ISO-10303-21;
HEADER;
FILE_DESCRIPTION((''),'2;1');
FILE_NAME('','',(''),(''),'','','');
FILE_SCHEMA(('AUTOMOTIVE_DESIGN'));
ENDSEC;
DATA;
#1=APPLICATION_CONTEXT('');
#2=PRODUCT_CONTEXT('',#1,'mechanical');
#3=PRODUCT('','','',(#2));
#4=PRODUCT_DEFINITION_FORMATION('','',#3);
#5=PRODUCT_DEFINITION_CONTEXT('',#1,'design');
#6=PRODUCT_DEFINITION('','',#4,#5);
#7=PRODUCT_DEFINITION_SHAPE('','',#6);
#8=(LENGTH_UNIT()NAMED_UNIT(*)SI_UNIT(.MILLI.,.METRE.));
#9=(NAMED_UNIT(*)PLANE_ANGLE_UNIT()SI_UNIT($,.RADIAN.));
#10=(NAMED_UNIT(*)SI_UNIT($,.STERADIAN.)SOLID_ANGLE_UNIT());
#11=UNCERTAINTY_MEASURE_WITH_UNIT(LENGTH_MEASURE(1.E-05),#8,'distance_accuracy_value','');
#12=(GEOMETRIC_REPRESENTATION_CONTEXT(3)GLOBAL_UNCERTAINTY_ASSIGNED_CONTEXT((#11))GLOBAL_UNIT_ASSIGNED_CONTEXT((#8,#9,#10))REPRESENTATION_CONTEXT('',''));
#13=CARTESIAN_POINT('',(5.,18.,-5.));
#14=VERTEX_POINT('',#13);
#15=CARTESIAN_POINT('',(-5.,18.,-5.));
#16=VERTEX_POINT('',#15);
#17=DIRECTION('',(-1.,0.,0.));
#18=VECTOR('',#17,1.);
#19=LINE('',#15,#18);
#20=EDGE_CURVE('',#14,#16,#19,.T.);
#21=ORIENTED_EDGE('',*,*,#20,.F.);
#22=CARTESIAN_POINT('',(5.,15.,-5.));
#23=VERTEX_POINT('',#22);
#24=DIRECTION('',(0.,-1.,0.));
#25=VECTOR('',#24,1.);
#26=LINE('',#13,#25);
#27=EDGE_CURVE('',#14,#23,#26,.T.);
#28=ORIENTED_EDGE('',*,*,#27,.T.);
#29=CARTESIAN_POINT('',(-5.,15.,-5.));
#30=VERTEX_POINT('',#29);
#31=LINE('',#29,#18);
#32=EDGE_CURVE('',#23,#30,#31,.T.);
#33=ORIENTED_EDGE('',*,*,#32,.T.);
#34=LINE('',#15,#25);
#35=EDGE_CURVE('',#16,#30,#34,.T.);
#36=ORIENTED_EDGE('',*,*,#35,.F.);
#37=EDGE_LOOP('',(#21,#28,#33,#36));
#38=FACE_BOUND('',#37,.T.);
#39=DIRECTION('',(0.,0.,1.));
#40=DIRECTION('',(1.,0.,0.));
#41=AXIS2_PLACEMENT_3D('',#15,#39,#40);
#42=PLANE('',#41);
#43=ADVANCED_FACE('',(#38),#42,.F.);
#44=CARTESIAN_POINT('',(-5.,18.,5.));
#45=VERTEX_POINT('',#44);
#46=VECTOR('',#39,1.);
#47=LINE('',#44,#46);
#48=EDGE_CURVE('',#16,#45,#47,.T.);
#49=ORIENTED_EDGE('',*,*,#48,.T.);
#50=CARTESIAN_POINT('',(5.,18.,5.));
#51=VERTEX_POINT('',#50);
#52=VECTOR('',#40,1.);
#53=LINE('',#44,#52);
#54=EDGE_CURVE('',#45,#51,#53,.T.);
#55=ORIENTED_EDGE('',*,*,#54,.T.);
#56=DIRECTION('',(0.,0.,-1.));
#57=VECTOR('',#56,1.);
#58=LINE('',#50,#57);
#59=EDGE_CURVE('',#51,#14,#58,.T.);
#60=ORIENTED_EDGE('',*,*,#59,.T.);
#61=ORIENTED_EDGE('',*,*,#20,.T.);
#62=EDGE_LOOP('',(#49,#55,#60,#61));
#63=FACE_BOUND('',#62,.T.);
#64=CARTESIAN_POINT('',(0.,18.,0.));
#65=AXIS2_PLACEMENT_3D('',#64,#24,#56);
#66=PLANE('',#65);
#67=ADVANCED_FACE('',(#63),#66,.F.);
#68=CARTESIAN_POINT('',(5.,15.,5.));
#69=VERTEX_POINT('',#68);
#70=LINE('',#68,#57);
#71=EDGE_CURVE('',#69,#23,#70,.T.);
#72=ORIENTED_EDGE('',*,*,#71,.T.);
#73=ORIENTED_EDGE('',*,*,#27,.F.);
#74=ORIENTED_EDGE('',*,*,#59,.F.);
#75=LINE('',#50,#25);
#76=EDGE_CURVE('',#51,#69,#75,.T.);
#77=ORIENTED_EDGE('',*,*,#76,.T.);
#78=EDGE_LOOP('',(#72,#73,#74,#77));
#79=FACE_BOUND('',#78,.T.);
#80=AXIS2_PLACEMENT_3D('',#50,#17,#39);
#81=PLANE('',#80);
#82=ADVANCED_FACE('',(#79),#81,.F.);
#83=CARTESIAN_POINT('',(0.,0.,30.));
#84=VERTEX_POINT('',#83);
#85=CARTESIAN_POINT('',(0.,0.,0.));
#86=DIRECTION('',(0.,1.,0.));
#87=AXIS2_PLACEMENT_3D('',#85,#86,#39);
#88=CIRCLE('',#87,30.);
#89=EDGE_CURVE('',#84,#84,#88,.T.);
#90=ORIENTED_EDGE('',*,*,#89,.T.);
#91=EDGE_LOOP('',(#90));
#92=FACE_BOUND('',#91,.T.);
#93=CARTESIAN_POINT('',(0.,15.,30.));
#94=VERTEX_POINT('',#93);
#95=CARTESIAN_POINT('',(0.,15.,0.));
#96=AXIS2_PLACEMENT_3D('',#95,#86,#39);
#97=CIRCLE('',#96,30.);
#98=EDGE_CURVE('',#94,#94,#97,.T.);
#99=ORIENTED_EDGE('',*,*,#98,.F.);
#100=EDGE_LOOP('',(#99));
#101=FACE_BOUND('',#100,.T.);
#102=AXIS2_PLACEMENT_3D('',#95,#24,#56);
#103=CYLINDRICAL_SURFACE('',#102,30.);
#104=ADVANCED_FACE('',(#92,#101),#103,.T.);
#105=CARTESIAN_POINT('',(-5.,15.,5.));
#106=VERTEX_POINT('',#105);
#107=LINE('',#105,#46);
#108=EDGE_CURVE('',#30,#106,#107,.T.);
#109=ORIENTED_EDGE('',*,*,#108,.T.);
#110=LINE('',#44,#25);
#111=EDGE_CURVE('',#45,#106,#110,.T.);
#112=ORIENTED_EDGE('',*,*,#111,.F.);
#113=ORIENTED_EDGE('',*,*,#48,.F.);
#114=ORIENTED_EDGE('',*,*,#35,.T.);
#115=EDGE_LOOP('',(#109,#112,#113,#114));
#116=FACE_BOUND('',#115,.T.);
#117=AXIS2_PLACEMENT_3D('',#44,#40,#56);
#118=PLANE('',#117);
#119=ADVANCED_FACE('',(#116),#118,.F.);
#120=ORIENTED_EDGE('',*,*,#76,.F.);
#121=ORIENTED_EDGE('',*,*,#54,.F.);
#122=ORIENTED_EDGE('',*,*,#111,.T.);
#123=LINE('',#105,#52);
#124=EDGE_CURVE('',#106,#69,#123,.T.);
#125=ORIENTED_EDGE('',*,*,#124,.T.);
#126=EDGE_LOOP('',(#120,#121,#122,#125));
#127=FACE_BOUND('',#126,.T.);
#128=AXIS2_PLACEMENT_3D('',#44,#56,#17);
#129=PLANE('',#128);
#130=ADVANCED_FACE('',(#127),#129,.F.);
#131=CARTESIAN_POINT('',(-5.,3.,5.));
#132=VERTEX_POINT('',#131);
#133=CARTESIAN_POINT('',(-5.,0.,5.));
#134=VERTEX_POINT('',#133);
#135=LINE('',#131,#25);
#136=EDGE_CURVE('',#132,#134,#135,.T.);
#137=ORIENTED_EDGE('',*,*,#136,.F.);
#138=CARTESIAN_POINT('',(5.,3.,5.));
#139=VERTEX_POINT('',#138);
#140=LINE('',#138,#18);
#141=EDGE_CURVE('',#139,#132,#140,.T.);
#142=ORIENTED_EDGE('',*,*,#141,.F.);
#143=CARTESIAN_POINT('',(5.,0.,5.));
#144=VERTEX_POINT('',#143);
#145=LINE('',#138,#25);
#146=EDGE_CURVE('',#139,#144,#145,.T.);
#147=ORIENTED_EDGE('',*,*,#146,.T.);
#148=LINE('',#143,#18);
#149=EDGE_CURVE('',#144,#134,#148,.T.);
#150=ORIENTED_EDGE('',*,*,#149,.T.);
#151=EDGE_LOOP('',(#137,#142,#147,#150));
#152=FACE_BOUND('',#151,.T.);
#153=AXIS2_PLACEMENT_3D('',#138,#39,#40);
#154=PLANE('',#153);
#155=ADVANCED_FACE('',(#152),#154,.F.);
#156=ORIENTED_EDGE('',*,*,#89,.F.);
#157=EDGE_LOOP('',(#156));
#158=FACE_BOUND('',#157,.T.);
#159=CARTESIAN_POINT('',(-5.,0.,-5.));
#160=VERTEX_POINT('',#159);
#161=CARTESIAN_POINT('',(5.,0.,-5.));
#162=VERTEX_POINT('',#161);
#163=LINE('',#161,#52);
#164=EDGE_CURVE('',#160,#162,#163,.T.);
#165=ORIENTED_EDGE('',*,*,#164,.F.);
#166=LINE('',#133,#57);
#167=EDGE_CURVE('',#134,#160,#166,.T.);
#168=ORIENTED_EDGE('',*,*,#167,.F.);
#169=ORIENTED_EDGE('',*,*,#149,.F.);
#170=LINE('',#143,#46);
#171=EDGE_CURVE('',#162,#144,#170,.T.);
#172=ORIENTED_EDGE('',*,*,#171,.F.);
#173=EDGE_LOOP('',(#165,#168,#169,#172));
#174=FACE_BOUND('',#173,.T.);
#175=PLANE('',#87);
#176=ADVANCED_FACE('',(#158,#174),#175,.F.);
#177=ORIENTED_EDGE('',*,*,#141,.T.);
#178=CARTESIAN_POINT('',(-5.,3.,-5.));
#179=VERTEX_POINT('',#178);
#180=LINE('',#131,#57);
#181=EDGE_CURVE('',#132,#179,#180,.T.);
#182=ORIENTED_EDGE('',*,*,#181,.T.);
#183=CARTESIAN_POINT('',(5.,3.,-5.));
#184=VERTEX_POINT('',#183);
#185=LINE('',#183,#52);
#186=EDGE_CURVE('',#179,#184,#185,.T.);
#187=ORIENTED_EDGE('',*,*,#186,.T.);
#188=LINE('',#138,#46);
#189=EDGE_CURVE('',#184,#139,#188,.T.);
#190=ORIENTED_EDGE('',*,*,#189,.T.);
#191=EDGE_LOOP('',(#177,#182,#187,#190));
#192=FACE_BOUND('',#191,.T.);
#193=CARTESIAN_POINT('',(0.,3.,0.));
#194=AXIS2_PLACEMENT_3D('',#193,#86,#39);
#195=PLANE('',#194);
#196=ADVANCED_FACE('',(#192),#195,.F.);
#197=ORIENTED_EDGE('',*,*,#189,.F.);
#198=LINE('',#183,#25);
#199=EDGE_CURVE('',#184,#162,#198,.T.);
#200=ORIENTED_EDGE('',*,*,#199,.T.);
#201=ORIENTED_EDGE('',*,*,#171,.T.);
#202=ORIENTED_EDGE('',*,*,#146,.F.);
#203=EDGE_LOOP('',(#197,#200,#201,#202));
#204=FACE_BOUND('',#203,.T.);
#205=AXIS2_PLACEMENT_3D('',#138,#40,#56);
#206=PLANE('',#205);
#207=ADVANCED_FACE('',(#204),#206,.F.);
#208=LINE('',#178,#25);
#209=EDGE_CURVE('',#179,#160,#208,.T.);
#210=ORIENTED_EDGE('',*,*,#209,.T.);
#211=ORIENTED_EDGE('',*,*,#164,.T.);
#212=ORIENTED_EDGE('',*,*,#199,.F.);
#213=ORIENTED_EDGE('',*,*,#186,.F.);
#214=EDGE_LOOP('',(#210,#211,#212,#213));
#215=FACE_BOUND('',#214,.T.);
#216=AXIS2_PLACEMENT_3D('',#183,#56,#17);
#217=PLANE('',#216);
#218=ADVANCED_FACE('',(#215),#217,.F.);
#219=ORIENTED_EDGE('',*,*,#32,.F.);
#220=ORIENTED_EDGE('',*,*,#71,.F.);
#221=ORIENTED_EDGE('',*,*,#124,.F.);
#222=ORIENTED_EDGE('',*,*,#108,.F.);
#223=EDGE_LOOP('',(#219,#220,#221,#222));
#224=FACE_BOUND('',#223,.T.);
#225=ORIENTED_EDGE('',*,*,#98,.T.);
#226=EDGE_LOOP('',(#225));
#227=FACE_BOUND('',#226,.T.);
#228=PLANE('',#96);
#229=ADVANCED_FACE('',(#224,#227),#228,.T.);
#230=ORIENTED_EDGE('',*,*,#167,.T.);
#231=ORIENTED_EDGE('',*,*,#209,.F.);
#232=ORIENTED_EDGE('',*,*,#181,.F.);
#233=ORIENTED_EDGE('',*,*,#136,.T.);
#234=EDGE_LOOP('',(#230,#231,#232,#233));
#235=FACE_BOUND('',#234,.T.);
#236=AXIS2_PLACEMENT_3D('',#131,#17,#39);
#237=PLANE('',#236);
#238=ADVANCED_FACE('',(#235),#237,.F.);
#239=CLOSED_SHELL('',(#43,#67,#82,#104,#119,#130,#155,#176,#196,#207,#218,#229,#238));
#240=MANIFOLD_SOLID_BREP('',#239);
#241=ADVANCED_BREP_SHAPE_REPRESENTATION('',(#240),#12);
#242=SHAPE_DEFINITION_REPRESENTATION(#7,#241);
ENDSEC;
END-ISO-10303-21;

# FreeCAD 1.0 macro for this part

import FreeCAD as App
import Part
import Sketcher


def add_polygon(sketch, points):
    """Adds a closed chain of lines whose ends are joined by coincident constraints."""
    first, n = sketch.GeometryCount, len(points)
    for a, b in zip(points, points[1:] + points[:1]):
        sketch.addGeometry(Part.LineSegment(App.Vector(*a, 0), App.Vector(*b, 0)), False)
    for i in range(n):
        sketch.addConstraint(Sketcher.Constraint("Coincident", first + i, 2, first + (i + 1) % n, 1))

doc = App.newDocument("Part")
body = doc.addObject("PartDesign::Body", "Body")

sketch1 = body.newObject("Sketcher::SketchObject", "Sketch")
sketch1.AttachmentSupport = (doc.getObject("XZ_Plane"), [""])
sketch1.MapMode = "FlatFace"
sketch1.addGeometry(Part.Circle(App.Vector(0, 0, 0), App.Vector(0, 0, 1), 30), False)
sketch1.addConstraint([
    Sketcher.Constraint("Coincident", 0, 3, -1, 1),
    Sketcher.Constraint("Diameter", 0, 60.0),
])
pad1 = body.newObject("PartDesign::Pad", "Pad")
pad1.Profile = sketch1
pad1.Length = 15
pad1.Reversed = True

sketch2 = body.newObject("Sketcher::SketchObject", "Sketch001")
sketch2.AttachmentSupport = (doc.getObject("XZ_Plane"), [""])
sketch2.MapMode = "FlatFace"
sketch2.AttachmentOffset = App.Placement(App.Vector(0, 0, -15), App.Rotation())
add_polygon(sketch2, [(-5, -5), (-5, 5), (5, 5), (5, -5)])
sketch2.addConstraint([
    Sketcher.Constraint("Vertical", 0),
    Sketcher.Constraint("Horizontal", 1),
    Sketcher.Constraint("Vertical", 2),
    Sketcher.Constraint("Horizontal", 3),
    Sketcher.Constraint("Symmetric", 0, 2, 2, 2, -1, 1),
    Sketcher.Constraint("Equal", 3, 0),
    Sketcher.Constraint("DistanceX", 1, 1, 1, 2, 10.0),
])
pad2 = body.newObject("PartDesign::Pad", "Pad001")
pad2.Profile = sketch2
pad2.Length = 3
pad2.Reversed = True

sketch3 = body.newObject("Sketcher::SketchObject", "Sketch002")
sketch3.AttachmentSupport = (doc.getObject("XZ_Plane"), [""])
sketch3.MapMode = "FlatFace"
add_polygon(sketch3, [(-5, 5), (-5, -5), (5, -5), (5, 5)])
sketch3.addConstraint([
    Sketcher.Constraint("Vertical", 0),
    Sketcher.Constraint("Horizontal", 1),
    Sketcher.Constraint("Vertical", 2),
    Sketcher.Constraint("Horizontal", 3),
    Sketcher.Constraint("Symmetric", 0, 2, 2, 2, -1, 1),
    Sketcher.Constraint("Equal", 3, 0),
    Sketcher.Constraint("DistanceX", 1, 1, 1, 2, 10.0),
])
pocket1 = body.newObject("PartDesign::Pocket", "Pocket")
pocket1.Profile = sketch3
pocket1.Length = 3

doc.recompute()
